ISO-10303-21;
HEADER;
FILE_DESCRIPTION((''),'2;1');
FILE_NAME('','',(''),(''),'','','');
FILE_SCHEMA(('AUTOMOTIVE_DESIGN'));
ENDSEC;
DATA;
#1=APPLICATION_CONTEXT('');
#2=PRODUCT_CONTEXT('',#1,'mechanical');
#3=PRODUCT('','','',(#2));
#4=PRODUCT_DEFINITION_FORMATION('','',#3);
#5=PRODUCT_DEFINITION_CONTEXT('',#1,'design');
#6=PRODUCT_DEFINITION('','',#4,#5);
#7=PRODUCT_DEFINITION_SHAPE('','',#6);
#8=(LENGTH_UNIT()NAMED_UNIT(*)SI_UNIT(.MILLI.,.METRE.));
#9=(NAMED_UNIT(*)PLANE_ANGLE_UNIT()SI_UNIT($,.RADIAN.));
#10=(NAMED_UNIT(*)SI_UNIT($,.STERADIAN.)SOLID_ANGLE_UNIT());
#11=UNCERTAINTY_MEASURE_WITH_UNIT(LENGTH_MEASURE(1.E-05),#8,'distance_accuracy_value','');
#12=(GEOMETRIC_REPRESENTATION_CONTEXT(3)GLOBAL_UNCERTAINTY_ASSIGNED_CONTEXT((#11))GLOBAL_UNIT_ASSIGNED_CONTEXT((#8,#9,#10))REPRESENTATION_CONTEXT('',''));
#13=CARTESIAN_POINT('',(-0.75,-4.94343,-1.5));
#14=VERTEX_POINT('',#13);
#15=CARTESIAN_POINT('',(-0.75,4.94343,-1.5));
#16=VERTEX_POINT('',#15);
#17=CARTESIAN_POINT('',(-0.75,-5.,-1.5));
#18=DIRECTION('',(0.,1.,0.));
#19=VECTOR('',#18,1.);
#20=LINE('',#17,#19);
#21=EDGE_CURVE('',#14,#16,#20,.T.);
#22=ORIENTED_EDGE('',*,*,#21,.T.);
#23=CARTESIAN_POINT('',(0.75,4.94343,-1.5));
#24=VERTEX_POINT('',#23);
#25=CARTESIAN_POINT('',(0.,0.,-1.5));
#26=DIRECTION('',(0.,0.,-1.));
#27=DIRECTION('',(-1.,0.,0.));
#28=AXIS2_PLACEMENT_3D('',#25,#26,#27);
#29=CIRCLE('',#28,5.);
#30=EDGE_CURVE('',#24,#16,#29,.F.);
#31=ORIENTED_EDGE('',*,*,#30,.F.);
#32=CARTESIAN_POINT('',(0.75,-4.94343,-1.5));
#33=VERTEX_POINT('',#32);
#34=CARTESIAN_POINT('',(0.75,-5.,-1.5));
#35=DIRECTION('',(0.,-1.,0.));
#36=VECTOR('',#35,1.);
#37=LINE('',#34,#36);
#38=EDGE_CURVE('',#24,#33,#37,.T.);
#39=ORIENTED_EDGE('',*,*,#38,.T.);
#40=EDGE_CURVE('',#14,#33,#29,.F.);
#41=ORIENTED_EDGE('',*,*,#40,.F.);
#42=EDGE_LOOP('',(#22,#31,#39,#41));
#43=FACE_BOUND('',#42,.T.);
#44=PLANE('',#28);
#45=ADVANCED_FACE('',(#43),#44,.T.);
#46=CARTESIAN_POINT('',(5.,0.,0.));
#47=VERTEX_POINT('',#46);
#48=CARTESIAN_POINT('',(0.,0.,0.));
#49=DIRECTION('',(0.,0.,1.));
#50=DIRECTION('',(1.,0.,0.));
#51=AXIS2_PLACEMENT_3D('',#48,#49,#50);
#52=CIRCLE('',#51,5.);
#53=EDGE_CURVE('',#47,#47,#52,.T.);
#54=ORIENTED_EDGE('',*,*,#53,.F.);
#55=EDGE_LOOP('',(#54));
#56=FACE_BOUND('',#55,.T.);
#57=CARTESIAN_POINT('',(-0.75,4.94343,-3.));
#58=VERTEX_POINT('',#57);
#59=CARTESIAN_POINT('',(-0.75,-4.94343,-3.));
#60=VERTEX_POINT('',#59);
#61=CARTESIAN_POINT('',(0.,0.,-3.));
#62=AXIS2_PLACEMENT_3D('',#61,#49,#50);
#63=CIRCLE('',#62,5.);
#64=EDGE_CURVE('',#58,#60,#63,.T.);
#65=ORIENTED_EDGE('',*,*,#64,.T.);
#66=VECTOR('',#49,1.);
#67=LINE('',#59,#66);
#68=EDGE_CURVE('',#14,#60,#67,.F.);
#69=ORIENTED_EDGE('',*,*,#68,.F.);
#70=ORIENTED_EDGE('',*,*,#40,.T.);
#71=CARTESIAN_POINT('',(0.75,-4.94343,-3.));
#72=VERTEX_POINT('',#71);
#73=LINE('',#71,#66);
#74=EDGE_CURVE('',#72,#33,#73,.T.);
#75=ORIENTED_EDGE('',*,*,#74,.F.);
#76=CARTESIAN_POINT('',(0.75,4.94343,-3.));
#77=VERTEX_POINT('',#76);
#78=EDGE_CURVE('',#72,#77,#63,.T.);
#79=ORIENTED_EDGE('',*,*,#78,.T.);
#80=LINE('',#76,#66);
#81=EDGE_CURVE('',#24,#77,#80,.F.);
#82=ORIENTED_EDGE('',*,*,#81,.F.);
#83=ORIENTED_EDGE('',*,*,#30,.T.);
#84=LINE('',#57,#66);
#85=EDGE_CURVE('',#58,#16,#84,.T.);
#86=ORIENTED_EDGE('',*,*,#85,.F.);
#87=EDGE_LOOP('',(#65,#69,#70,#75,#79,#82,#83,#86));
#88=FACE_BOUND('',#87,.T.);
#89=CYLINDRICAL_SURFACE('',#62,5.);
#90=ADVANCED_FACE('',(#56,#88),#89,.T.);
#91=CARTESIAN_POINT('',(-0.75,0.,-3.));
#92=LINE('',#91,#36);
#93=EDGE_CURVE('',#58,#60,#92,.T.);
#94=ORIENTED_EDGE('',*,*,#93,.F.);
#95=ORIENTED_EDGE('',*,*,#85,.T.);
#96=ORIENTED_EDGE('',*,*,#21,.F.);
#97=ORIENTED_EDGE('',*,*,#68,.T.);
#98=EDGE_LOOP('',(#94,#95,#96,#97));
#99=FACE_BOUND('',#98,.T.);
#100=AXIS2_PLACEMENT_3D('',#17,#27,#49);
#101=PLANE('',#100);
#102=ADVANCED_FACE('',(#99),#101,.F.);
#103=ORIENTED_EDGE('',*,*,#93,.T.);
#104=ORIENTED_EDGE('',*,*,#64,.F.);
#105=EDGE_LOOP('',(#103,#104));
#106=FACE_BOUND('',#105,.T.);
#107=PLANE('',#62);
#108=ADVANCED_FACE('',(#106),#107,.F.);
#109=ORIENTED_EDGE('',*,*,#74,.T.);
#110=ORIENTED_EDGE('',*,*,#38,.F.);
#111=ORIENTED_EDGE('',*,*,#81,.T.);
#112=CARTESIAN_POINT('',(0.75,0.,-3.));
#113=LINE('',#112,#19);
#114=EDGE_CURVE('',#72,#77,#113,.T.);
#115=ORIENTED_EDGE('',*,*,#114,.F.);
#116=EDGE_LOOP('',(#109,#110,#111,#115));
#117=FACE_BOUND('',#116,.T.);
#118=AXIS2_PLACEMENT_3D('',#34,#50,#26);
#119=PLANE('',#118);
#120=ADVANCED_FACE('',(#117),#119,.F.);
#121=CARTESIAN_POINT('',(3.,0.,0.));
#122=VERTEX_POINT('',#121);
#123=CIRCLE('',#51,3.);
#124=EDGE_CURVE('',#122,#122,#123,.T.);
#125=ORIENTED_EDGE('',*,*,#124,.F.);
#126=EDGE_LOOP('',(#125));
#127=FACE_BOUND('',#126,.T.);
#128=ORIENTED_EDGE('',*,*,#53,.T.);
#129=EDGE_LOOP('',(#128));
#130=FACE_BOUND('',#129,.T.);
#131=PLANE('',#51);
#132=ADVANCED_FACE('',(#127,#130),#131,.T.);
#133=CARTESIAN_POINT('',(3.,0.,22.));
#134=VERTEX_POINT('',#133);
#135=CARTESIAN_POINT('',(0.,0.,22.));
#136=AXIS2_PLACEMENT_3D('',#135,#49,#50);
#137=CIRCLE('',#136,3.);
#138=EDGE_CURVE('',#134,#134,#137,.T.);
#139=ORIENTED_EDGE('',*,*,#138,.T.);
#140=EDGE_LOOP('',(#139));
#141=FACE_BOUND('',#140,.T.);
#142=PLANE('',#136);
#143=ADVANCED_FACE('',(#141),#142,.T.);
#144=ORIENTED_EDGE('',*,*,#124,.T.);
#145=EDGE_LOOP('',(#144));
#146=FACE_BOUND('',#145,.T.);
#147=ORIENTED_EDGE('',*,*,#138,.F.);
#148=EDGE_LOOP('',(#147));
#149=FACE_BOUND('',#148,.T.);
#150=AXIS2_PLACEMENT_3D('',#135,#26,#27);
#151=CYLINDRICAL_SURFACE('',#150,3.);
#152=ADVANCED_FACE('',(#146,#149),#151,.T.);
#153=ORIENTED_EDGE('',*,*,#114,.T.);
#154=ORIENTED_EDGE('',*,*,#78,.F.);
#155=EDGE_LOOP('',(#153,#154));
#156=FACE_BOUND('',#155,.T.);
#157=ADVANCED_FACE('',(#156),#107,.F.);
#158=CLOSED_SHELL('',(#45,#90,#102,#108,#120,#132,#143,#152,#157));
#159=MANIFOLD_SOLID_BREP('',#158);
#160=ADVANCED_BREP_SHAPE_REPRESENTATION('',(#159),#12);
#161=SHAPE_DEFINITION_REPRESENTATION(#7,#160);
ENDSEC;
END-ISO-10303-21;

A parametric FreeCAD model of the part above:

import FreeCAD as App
import Part
import Sketcher
from FreeCAD import Vector

doc = App.newDocument("Part")
params = doc.addObject("Spreadsheet::Sheet", "Params")
for row, (alias, value) in enumerate([
    ("sketch1_diameter", "6 mm"),
    ("pad1_length", "22 mm"),
    ("sketch2_diameter", "10 mm"),
    ("pad2_length", "3 mm"),
    ("sketch3_height", "10 mm"),
    ("sketch3_width", "1.5 mm"),
    ("pocket1_length", "1.5 mm"),
], start=1):
    params.set(f"A{row}", alias)
    params.set(f"B{row}", "=" + value)
    params.setAlias(f"B{row}", alias)

body = doc.addObject("PartDesign::Body", "Body")

sketch1 = doc.addObject("Sketcher::SketchObject", "Sketch")
body.addObject(sketch1)
sketch1.AttachmentSupport = (doc.XY_Plane, [""])
sketch1.MapMode = "FlatFace"
sketch1.addGeometry(Part.Circle(Vector(0, 0, 0), Vector(0, 0, 1), 3), False)
sketch1.addConstraint(Sketcher.Constraint("Coincident", 0, 3, -1, 1))
sketch1.addConstraint(Sketcher.Constraint("Diameter", 0, 6.0))
sketch1.setExpression("Constraints[1]", "Params.sketch1_diameter")
pad1 = doc.addObject("PartDesign::Pad", "Pad")
body.addObject(pad1)
pad1.Profile = sketch1
pad1.setExpression("Length", "Params.pad1_length")

sketch2 = doc.addObject("Sketcher::SketchObject", "Sketch001")
body.addObject(sketch2)
sketch2.AttachmentSupport = (doc.XY_Plane, [""])
sketch2.MapMode = "FlatFace"
sketch2.addGeometry(Part.Circle(Vector(0, 0, 0), Vector(0, 0, 1), 5), False)
sketch2.addConstraint(Sketcher.Constraint("Coincident", 0, 3, -1, 1))
sketch2.addConstraint(Sketcher.Constraint("Diameter", 0, 10.0))
sketch2.setExpression("Constraints[1]", "Params.sketch2_diameter")
pad2 = doc.addObject("PartDesign::Pad", "Pad001")
body.addObject(pad2)
pad2.Profile = sketch2
pad2.setExpression("Length", "Params.pad2_length")
pad2.Reversed = True

sketch3 = doc.addObject("Sketcher::SketchObject", "Sketch002")
body.addObject(sketch3)
sketch3.AttachmentSupport = (doc.XY_Plane, [""])
sketch3.MapMode = "FlatFace"
sketch3.AttachmentOffset = App.Placement(Vector(0, 0, -3), App.Rotation())
sketch3.addGeometry(Part.LineSegment(Vector(0.8, 5, 0), Vector(0.8, -5, 0)), False)
sketch3.addGeometry(Part.LineSegment(Vector(0.8, -5, 0), Vector(-0.8, -5, 0)), False)
sketch3.addGeometry(Part.LineSegment(Vector(-0.8, -5, 0), Vector(-0.8, 5, 0)), False)
sketch3.addGeometry(Part.LineSegment(Vector(-0.8, 5, 0), Vector(0.8, 5, 0)), False)
sketch3.addConstraint(Sketcher.Constraint("Coincident", 0, 2, 1, 1))
sketch3.addConstraint(Sketcher.Constraint("Coincident", 1, 2, 2, 1))
sketch3.addConstraint(Sketcher.Constraint("Coincident", 2, 2, 3, 1))
sketch3.addConstraint(Sketcher.Constraint("Coincident", 3, 2, 0, 1))
sketch3.addConstraint(Sketcher.Constraint("Vertical", 0))
sketch3.addConstraint(Sketcher.Constraint("Horizontal", 1))
sketch3.addConstraint(Sketcher.Constraint("Vertical", 2))
sketch3.addConstraint(Sketcher.Constraint("Horizontal", 3))
sketch3.addConstraint(Sketcher.Constraint("Symmetric", 0, 2, 2, 2, -1, 1))
sketch3.addConstraint(Sketcher.Constraint("DistanceY", 0, 2, 0, 1, 10.0))
sketch3.addConstraint(Sketcher.Constraint("DistanceX", 1, 2, 1, 1, 1.5))
sketch3.setExpression("Constraints[9]", "Params.sketch3_height")
sketch3.setExpression("Constraints[10]", "Params.sketch3_width")
pocket1 = doc.addObject("PartDesign::Pocket", "Pocket")
body.addObject(pocket1)
pocket1.Profile = sketch3
pocket1.setExpression("Length", "Params.pocket1_length")
pocket1.Reversed = True

doc.recompute()
